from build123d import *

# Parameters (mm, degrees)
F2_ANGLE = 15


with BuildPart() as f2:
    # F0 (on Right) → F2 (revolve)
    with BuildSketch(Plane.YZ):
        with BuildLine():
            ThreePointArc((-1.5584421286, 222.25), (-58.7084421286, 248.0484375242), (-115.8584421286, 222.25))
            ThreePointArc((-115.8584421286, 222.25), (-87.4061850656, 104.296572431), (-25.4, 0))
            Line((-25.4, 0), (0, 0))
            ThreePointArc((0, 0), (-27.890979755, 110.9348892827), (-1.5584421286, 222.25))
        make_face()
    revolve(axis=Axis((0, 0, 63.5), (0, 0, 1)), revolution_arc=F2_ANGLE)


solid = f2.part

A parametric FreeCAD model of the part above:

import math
import FreeCAD as App
import Part
import Sketcher
Q = App.Units.Quantity

doc = App.newDocument("Part")
body = doc.addObject("PartDesign::Body", "Body")

sketch1 = doc.addObject("Sketcher::SketchObject", "Sketch")
body.addObject(sketch1)
sketch1.AttachmentSupport = (doc.YZ_Plane, [""])
sketch1.MapMode = "FlatFace"
sketch1.addGeometry(Part.ArcOfCircle(Part.Circle(App.Vector(-59, 172, 0), App.Vector(0, 0, 1), 76), math.radians(41), math.radians(139)), False)
sketch1.addGeometry(Part.ArcOfCircle(Part.Circle(App.Vector(289, 258, 0), App.Vector(0, 0, 1), 406), math.radians(-175), math.radians(-141)), False)
sketch1.addGeometry(Part.LineSegment(App.Vector(-25, 0, 0), App.Vector(0, 0, 0)), False)
sketch1.addGeometry(Part.ArcOfCircle(Part.Circle(App.Vector(213, 113, 0), App.Vector(0, 0, 1), 241), math.radians(153), math.radians(208)), False)
sketch1.addConstraint(Sketcher.Constraint("Coincident", 0, 2, 1, 1))
sketch1.addConstraint(Sketcher.Constraint("Coincident", 1, 2, 2, 1))
sketch1.addConstraint(Sketcher.Constraint("Coincident", 2, 2, 3, 2))
sketch1.addConstraint(Sketcher.Constraint("Coincident", 3, 1, 0, 1))
sketch1.addConstraint(Sketcher.Constraint("Horizontal", 2))
sketch1.addConstraint(Sketcher.Constraint("Coincident", 2, 2, -1, 1))
sketch1.addConstraint(Sketcher.Constraint("Horizontal", 0, 2, 3, 1))
sketch1.addConstraint(Sketcher.Constraint("Radius", 0, Q("3 in")))
sketch1.addConstraint(Sketcher.Constraint("Radius", 1, Q("16 in")))
sketch1.addConstraint(Sketcher.Constraint("Radius", 3, Q("9.5 in")))
sketch1.addConstraint(Sketcher.Constraint("DistanceX", 2, 1, 2, 2, Q("1 in")))
sketch1.addConstraint(Sketcher.Constraint("DistanceX", 0, 2, 3, 1, Q("4.5 in")))
sketch1.addConstraint(Sketcher.Constraint("DistanceY", -1, 1, 0, 2, Q("8.75 in")))
sketch1.addConstraint(Sketcher.Constraint("DistanceX", -1, 1, 1, 3, 289.009719))
revolution = doc.addObject("PartDesign::Revolution", "Revolution")
body.addObject(revolution)
revolution.Profile = sketch1
revolution.ReferenceAxis = (sketch1, ["V_Axis"])
revolution.Angle = 15

doc.recompute()
